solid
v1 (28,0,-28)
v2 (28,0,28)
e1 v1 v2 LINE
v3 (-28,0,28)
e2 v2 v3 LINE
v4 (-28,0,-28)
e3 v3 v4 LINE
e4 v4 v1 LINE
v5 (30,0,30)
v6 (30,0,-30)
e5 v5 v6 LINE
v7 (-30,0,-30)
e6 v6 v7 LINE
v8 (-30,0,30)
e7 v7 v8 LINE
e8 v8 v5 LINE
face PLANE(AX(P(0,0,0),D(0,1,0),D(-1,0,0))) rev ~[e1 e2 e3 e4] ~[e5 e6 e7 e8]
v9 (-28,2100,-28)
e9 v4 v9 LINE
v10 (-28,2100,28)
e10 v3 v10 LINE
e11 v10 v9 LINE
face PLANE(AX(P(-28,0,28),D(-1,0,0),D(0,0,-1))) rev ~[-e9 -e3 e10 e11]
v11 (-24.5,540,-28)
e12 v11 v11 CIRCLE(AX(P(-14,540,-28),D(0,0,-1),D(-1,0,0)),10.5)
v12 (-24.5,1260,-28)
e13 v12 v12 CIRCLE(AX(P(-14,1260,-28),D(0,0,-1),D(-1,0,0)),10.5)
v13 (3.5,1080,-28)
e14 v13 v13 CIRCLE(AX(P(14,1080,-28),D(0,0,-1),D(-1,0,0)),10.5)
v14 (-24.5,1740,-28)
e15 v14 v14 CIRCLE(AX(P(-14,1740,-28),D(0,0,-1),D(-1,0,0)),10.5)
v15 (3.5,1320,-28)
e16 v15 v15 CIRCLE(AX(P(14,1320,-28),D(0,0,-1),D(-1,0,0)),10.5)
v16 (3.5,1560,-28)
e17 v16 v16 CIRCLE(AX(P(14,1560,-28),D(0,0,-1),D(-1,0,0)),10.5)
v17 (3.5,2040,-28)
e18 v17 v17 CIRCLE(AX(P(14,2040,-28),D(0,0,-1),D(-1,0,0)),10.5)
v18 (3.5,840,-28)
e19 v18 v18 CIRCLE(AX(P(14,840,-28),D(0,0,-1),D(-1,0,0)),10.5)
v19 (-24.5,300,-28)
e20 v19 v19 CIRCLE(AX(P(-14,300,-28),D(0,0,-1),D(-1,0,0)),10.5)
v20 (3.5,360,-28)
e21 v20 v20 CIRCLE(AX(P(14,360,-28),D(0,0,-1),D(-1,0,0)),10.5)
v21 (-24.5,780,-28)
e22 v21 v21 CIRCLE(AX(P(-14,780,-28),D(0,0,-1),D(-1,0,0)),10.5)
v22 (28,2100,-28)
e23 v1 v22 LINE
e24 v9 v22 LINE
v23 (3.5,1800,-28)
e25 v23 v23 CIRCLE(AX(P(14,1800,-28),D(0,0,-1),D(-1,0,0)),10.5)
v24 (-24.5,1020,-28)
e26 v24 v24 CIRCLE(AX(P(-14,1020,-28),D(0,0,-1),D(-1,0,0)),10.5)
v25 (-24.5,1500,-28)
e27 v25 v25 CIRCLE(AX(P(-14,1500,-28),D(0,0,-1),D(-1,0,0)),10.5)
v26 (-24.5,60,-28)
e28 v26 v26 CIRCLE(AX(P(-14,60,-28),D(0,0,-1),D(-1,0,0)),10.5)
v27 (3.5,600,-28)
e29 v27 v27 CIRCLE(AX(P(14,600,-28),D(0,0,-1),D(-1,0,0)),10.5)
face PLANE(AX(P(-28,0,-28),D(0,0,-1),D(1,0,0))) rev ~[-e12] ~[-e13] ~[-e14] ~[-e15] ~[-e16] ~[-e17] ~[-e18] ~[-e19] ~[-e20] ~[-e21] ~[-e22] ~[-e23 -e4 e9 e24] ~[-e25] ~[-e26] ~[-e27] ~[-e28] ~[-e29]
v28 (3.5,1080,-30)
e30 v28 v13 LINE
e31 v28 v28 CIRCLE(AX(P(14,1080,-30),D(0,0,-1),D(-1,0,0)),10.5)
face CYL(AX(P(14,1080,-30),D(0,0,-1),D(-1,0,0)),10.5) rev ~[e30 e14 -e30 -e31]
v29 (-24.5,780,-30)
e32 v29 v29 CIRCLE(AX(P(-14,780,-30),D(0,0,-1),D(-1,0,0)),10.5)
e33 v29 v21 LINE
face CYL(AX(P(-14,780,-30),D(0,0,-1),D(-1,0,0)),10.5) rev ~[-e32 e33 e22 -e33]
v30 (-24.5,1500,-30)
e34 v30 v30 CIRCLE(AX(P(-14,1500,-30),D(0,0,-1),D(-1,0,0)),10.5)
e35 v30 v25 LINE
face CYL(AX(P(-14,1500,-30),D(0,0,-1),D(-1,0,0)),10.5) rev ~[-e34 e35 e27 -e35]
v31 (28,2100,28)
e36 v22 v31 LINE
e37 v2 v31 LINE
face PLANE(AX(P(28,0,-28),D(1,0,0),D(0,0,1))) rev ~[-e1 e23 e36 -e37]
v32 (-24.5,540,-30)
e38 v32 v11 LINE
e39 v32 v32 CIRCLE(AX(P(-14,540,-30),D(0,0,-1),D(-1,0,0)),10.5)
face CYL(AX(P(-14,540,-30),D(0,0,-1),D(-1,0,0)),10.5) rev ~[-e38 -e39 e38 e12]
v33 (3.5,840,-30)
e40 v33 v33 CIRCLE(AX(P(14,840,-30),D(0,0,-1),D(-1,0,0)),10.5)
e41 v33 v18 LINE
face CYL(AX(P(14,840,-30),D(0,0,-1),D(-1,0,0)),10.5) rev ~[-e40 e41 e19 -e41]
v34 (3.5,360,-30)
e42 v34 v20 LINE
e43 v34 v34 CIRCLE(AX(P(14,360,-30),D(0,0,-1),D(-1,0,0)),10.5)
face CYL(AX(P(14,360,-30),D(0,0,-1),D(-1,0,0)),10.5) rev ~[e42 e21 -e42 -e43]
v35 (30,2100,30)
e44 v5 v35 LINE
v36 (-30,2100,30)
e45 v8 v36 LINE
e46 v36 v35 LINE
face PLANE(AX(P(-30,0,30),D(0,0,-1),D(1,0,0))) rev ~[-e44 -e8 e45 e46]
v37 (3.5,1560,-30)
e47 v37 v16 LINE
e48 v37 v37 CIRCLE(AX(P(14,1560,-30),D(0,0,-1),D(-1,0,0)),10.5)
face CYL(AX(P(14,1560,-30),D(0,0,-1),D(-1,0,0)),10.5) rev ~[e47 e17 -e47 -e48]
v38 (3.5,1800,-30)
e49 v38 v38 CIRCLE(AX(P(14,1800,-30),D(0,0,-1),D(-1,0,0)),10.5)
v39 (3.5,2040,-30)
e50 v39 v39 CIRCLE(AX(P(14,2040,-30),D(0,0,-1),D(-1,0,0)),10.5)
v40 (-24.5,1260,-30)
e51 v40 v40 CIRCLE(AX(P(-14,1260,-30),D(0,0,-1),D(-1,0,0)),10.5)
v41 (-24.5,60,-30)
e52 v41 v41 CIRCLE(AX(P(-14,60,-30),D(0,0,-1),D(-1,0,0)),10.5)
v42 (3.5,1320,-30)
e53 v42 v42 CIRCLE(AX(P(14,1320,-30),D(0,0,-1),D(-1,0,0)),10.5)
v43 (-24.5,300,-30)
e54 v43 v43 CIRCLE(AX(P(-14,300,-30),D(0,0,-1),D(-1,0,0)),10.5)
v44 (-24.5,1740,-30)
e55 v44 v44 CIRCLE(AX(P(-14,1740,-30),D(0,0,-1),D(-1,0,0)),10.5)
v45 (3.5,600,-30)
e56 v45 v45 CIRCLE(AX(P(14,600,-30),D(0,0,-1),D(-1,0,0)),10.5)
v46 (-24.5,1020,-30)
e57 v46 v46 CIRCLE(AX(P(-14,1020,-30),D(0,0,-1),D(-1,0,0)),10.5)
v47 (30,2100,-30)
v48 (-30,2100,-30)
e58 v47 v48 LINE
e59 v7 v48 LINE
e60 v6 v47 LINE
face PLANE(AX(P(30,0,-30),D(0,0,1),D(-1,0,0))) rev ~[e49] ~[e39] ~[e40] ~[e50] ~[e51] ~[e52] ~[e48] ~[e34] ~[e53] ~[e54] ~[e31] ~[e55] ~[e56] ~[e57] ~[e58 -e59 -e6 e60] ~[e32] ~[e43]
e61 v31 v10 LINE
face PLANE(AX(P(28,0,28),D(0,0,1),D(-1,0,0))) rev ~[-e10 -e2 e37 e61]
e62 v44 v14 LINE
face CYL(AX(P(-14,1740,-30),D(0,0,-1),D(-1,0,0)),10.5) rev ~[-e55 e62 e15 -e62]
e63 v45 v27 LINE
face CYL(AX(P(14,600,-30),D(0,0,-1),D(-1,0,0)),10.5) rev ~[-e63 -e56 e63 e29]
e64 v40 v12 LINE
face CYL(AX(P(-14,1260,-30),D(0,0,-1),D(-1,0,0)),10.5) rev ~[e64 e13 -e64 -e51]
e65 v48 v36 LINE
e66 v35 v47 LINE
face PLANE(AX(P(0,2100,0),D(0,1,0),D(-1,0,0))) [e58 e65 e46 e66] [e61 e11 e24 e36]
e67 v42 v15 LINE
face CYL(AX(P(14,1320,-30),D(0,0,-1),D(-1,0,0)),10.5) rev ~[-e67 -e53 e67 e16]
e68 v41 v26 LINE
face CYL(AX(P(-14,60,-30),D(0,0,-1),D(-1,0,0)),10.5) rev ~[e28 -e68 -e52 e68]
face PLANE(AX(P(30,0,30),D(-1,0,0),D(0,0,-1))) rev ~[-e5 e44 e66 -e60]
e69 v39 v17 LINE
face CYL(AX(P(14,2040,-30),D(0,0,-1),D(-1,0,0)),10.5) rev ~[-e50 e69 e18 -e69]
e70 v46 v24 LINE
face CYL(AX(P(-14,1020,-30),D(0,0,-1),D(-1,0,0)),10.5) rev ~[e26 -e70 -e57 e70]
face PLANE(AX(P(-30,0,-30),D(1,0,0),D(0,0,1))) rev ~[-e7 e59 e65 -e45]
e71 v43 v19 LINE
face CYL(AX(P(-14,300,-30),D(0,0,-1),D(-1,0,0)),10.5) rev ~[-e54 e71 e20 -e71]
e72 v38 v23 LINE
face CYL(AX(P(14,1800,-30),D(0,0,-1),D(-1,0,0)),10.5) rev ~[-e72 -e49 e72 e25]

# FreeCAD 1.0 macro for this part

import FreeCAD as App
import Part
import Sketcher
from FreeCAD import Vector

doc = App.newDocument("Part")
params = doc.addObject("Spreadsheet::Sheet", "Params")
for row, (alias, value) in enumerate([
    ("sketch1_width", "60 mm"),
    ("pad1_length", "2100 mm"),
    ("sketch2_diameter", "21 mm"),
    ("pocket1_length", "2 mm"),
    ("linearpattern_pitch", "240 mm"),
], start=1):
    params.set(f"A{row}", alias)
    params.set(f"B{row}", "=" + value)
    params.setAlias(f"B{row}", alias)

body = doc.addObject("PartDesign::Body", "Body")

sketch1 = body.newObject("Sketcher::SketchObject", "Sketch")
sketch1.AttachmentSupport = (doc.getObject("XZ_Plane"), [""])
sketch1.MapMode = "FlatFace"
sketch1.addGeometry(Part.LineSegment(Vector(-30, -30, 0), Vector(-30, 30, 0)), False)
sketch1.addGeometry(Part.LineSegment(Vector(-30, 30, 0), Vector(30, 30, 0)), False)
sketch1.addGeometry(Part.LineSegment(Vector(30, 30, 0), Vector(30, -30, 0)), False)
sketch1.addGeometry(Part.LineSegment(Vector(30, -30, 0), Vector(-30, -30, 0)), False)
sketch1.addGeometry(Part.LineSegment(Vector(-28, -28, 0), Vector(28, -28, 0)), False)
sketch1.addGeometry(Part.LineSegment(Vector(28, -28, 0), Vector(28, 28, 0)), False)
sketch1.addGeometry(Part.LineSegment(Vector(28, 28, 0), Vector(-28, 28, 0)), False)
sketch1.addGeometry(Part.LineSegment(Vector(-28, 28, 0), Vector(-28, -28, 0)), False)
sketch1.addConstraint(Sketcher.Constraint("Coincident", 0, 2, 1, 1))
sketch1.addConstraint(Sketcher.Constraint("Coincident", 1, 2, 2, 1))
sketch1.addConstraint(Sketcher.Constraint("Coincident", 2, 2, 3, 1))
sketch1.addConstraint(Sketcher.Constraint("Coincident", 3, 2, 0, 1))
sketch1.addConstraint(Sketcher.Constraint("Coincident", 4, 2, 5, 1))
sketch1.addConstraint(Sketcher.Constraint("Coincident", 5, 2, 6, 1))
sketch1.addConstraint(Sketcher.Constraint("Coincident", 6, 2, 7, 1))
sketch1.addConstraint(Sketcher.Constraint("Coincident", 7, 2, 4, 1))
sketch1.addConstraint(Sketcher.Constraint("Vertical", 0))
sketch1.addConstraint(Sketcher.Constraint("Horizontal", 1))
sketch1.addConstraint(Sketcher.Constraint("Vertical", 2))
sketch1.addConstraint(Sketcher.Constraint("Horizontal", 3))
sketch1.addConstraint(Sketcher.Constraint("Horizontal", 4))
sketch1.addConstraint(Sketcher.Constraint("Vertical", 5))
sketch1.addConstraint(Sketcher.Constraint("Horizontal", 6))
sketch1.addConstraint(Sketcher.Constraint("Vertical", 7))
sketch1.addConstraint(Sketcher.Constraint("Symmetric", 0, 2, 2, 2, -1, 1))
sketch1.addConstraint(Sketcher.Constraint("Symmetric", 4, 2, 6, 2, -1, 1))
sketch1.addConstraint(Sketcher.Constraint("Equal", 3, 0))
sketch1.addConstraint(Sketcher.Constraint("Equal", 6, 5))
sketch1.addConstraint(Sketcher.Constraint("DistanceX", 1, 1, 1, 2, 60.0))
sketch1.addConstraint(Sketcher.Constraint("DistanceX", 4, 2, 2, 2, 2.0))
sketch1.setExpression("Constraints[20]", "Params.sketch1_width")
pad1 = body.newObject("PartDesign::Pad", "Pad")
pad1.Profile = sketch1
pad1.setExpression("Length", "Params.pad1_length")
pad1.Reversed = True

sketch2 = body.newObject("Sketcher::SketchObject", "Sketch001")
sketch2.AttachmentSupport = (doc.getObject("XY_Plane"), [""])
sketch2.MapMode = "FlatFace"
sketch2.AttachmentOffset = App.Placement(Vector(0, 0, -30), App.Rotation())
sketch2.addGeometry(Part.Circle(Vector(-14, 60, 0), Vector(0, 0, 1), 10.5), False)
sketch2.addGeometry(Part.Circle(Vector(14, 360, 0), Vector(0, 0, 1), 10.5), False)
sketch2.addConstraint(Sketcher.Constraint("Equal", 0, 1))
sketch2.addConstraint(Sketcher.Constraint("Diameter", 0, 21.0))
sketch2.addConstraint(Sketcher.Constraint("DistanceY", -1, 1, 0, 3, 60.0))
sketch2.addConstraint(Sketcher.Constraint("DistanceY", 0, 3, 1, 3, 300.0))
sketch2.addConstraint(Sketcher.Constraint("DistanceX", 0, 3, -1, 1, 14.0))
sketch2.addConstraint(Sketcher.Constraint("DistanceX", -1, 1, 1, 3, 14.0))
sketch2.setExpression("Constraints[1]", "Params.sketch2_diameter")
pocket1 = body.newObject("PartDesign::Pocket", "Pocket")
pocket1.Profile = sketch2
pocket1.setExpression("Length", "Params.pocket1_length")
pocket1.Reversed = True
doc.recompute()

linearpattern = body.newObject("PartDesign::LinearPattern", "LinearPattern")
linearpattern.Originals = [pocket1]
linearpattern.Direction = (doc.getObject("Y_Axis"), [""])
linearpattern.Mode = "offset"
linearpattern.setExpression("Offset", "Params.linearpattern_pitch")
linearpattern.Occurrences = 8
body.Tip = linearpattern

doc.recompute()
